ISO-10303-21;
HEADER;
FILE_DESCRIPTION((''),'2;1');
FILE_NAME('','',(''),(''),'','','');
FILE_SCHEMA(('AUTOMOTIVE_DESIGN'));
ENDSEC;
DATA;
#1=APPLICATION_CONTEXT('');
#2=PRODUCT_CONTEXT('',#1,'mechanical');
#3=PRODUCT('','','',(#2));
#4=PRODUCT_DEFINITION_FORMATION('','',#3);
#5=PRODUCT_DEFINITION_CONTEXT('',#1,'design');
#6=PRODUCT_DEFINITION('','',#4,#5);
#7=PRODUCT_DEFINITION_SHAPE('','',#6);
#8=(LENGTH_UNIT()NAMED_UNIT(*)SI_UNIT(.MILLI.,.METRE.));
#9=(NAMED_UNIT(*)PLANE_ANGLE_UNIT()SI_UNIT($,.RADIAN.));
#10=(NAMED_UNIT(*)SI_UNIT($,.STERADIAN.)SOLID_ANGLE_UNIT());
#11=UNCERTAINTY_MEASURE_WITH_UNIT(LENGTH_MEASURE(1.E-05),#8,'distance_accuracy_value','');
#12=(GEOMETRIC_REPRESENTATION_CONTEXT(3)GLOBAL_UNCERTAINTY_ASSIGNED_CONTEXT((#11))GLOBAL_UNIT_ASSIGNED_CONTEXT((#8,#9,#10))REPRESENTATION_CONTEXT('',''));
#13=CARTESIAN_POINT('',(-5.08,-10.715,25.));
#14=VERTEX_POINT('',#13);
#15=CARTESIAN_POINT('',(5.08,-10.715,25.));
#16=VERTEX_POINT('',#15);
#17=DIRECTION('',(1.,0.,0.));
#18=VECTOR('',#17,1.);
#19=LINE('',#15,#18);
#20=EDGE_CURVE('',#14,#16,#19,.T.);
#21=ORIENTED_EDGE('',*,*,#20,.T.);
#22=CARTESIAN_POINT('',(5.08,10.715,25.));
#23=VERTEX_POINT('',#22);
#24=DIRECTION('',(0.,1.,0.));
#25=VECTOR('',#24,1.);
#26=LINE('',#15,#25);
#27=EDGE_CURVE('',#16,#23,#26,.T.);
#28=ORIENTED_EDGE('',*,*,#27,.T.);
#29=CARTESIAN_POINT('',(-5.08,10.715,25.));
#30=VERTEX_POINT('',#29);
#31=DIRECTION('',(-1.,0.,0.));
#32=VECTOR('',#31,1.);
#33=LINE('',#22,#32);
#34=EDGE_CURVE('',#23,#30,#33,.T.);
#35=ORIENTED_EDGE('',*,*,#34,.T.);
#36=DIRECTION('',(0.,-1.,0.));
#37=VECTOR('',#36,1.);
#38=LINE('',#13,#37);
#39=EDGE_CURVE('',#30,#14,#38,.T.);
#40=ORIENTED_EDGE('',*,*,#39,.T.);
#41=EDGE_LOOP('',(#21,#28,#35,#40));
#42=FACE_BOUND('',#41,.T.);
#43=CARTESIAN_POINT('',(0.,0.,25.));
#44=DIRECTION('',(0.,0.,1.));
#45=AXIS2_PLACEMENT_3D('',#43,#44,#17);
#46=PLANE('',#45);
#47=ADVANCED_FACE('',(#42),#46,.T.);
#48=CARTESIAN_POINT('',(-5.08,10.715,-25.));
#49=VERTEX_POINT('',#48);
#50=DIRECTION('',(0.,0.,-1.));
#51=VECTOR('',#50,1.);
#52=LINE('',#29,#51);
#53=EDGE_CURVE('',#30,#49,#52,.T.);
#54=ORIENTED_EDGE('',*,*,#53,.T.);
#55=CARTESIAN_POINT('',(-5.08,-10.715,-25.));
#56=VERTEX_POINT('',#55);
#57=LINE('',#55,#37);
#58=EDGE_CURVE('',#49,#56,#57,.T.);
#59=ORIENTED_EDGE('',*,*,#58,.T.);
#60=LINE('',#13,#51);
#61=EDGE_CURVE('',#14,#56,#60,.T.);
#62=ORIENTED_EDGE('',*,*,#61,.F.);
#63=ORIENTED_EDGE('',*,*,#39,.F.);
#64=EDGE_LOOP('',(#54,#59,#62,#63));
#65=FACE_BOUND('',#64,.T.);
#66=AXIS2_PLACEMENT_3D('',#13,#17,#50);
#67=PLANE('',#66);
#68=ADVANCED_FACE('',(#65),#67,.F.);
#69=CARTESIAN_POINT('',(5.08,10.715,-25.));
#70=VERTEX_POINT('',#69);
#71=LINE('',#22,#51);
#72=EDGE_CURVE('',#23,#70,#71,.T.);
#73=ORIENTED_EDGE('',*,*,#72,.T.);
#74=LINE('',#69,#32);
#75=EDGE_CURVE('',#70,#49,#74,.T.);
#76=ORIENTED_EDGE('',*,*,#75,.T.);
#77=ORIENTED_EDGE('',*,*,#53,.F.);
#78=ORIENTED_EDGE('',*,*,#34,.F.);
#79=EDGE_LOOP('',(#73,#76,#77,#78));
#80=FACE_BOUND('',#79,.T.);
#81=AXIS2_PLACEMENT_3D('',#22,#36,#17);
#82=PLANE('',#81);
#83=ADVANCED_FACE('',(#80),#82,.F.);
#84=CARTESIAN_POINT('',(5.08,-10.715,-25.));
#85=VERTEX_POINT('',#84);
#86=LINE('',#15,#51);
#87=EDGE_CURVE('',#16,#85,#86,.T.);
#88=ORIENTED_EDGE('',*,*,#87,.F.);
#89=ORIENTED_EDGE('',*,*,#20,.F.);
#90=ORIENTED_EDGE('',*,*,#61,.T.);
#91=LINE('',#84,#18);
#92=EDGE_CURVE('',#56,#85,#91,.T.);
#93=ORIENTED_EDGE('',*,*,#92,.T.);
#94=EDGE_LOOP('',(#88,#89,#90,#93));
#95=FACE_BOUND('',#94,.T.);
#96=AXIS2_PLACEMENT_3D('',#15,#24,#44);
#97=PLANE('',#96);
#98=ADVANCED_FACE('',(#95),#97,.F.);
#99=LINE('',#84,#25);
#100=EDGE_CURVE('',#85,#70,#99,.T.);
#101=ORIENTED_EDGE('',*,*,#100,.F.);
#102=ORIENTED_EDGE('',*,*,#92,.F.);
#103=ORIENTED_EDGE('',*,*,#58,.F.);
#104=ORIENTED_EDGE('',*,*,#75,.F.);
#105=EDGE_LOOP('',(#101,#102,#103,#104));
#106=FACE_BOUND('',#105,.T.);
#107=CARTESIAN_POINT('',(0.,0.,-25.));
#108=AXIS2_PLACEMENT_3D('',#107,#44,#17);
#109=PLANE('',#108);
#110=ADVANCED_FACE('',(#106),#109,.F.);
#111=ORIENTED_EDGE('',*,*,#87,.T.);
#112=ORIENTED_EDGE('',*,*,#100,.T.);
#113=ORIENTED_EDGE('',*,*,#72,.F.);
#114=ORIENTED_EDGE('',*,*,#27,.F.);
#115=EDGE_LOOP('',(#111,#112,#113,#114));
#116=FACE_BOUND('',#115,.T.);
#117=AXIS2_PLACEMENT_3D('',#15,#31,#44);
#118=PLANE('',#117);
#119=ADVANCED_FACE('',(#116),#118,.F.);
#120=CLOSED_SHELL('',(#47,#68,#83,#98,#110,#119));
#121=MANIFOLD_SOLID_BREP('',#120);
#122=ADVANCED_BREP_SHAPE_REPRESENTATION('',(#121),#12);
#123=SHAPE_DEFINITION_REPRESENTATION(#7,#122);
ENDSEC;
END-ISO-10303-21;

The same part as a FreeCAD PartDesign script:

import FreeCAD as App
import Part
import Sketcher
from FreeCAD import Vector

doc = App.newDocument("Part")
params = doc.addObject("Spreadsheet::Sheet", "Params")
for row, (alias, value) in enumerate([
    ("sketch1_width", "10.16 mm"),
    ("sketch1_height", "21.43 mm"),
    ("pad1_length", "50 mm"),
], start=1):
    params.set(f"A{row}", alias)
    params.set(f"B{row}", "=" + value)
    params.setAlias(f"B{row}", alias)

body = doc.addObject("PartDesign::Body", "Body")

sketch1 = body.newObject("Sketcher::SketchObject", "Sketch")
sketch1.AttachmentSupport = (doc.getObject("XY_Plane"), [""])
sketch1.MapMode = "FlatFace"
sketch1.addGeometry([
    Part.LineSegment(Vector(-5, 11, 0), Vector(-5, -11, 0)),
    Part.LineSegment(Vector(-5, -11, 0), Vector(5, -11, 0)),
    Part.LineSegment(Vector(5, -11, 0), Vector(5, 11, 0)),
    Part.LineSegment(Vector(5, 11, 0), Vector(-5, 11, 0)),
], False)
sketch1.addConstraint([
    Sketcher.Constraint("Coincident", 0, 2, 1, 1),
    Sketcher.Constraint("Coincident", 1, 2, 2, 1),
    Sketcher.Constraint("Coincident", 2, 2, 3, 1),
    Sketcher.Constraint("Coincident", 3, 2, 0, 1),
    Sketcher.Constraint("Vertical", 0),
    Sketcher.Constraint("Horizontal", 1),
    Sketcher.Constraint("Vertical", 2),
    Sketcher.Constraint("Horizontal", 3),
    Sketcher.Constraint("Symmetric", 0, 2, 2, 2, -1, 1),
    Sketcher.Constraint("DistanceX", 1, 1, 1, 2, 10.16),
    Sketcher.Constraint("DistanceY", 0, 2, 0, 1, 21.43),
])
sketch1.setExpression("Constraints[9]", "Params.sketch1_width")
sketch1.setExpression("Constraints[10]", "Params.sketch1_height")
pad1 = body.newObject("PartDesign::Pad", "Pad")
pad1.Profile = sketch1
pad1.setExpression("Length", "Params.pad1_length")
pad1.Midplane = True

doc.recompute()
